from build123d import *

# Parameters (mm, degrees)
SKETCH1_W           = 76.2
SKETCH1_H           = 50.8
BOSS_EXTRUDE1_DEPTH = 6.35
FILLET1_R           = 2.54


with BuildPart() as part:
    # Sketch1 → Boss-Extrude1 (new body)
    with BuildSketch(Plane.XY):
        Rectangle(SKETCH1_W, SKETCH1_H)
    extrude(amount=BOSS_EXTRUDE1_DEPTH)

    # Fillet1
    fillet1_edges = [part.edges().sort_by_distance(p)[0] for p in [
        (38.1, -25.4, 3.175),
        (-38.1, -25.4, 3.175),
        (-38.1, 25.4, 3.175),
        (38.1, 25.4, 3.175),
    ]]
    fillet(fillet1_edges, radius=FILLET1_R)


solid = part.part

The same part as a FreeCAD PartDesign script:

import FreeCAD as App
import Part
import Sketcher
Q = App.Units.Quantity


def edges_at(feature, points):
    """Names of the edges that pass closest to the given points."""
    edges = feature.Shape.Edges
    near = lambda p: min(range(len(edges)), key=lambda i: edges[i].distToShape(Part.Vertex(*p))[0])
    return sorted({f"Edge{near(p) + 1}" for p in points})


def add_polygon(sketch, points):
    """Adds a closed chain of lines whose ends are joined by coincident constraints."""
    first, n = sketch.GeometryCount, len(points)
    for a, b in zip(points, points[1:] + points[:1]):
        sketch.addGeometry(Part.LineSegment(App.Vector(*a, 0), App.Vector(*b, 0)), False)
    for i in range(n):
        sketch.addConstraint(Sketcher.Constraint("Coincident", first + i, 2, first + (i + 1) % n, 1))

doc = App.newDocument("Part")
body = doc.addObject("PartDesign::Body", "Body")

# Sketch on XY plane
sketch1 = body.newObject("Sketcher::SketchObject", "Sketch")
sketch1.AttachmentSupport = (doc.getObject("XY_Plane"), [""])
sketch1.MapMode = "FlatFace"
add_polygon(sketch1, [(-38, 25), (-38, -25), (38, -25), (38, 25)])  # lines 0-3
sketch1.addConstraint([
    Sketcher.Constraint("Vertical", 0),
    Sketcher.Constraint("Horizontal", 1),
    Sketcher.Constraint("Vertical", 2),
    Sketcher.Constraint("Horizontal", 3),
    Sketcher.Constraint("Symmetric", 0, 2, 2, 2, -1, 1),
    Sketcher.Constraint("DistanceX", 1, 1, 1, 2, Q("3 in")),
    Sketcher.Constraint("DistanceY", 0, 2, 0, 1, Q("2 in")),
])
pad1 = body.newObject("PartDesign::Pad", "Pad")
pad1.Profile = sketch1
pad1.Length = Q("0.25 in")
doc.recompute()

fillet = body.newObject("PartDesign::Fillet", "Fillet")
fillet.Base = (pad1, edges_at(pad1, [
    (38.1, -25.4, 3.175),
    (-38.1, -25.4, 3.175),
    (-38.1, 25.4, 3.175),
    (38.1, 25.4, 3.175),
]))
fillet.Radius = Q("0.1 in")

doc.recompute()
